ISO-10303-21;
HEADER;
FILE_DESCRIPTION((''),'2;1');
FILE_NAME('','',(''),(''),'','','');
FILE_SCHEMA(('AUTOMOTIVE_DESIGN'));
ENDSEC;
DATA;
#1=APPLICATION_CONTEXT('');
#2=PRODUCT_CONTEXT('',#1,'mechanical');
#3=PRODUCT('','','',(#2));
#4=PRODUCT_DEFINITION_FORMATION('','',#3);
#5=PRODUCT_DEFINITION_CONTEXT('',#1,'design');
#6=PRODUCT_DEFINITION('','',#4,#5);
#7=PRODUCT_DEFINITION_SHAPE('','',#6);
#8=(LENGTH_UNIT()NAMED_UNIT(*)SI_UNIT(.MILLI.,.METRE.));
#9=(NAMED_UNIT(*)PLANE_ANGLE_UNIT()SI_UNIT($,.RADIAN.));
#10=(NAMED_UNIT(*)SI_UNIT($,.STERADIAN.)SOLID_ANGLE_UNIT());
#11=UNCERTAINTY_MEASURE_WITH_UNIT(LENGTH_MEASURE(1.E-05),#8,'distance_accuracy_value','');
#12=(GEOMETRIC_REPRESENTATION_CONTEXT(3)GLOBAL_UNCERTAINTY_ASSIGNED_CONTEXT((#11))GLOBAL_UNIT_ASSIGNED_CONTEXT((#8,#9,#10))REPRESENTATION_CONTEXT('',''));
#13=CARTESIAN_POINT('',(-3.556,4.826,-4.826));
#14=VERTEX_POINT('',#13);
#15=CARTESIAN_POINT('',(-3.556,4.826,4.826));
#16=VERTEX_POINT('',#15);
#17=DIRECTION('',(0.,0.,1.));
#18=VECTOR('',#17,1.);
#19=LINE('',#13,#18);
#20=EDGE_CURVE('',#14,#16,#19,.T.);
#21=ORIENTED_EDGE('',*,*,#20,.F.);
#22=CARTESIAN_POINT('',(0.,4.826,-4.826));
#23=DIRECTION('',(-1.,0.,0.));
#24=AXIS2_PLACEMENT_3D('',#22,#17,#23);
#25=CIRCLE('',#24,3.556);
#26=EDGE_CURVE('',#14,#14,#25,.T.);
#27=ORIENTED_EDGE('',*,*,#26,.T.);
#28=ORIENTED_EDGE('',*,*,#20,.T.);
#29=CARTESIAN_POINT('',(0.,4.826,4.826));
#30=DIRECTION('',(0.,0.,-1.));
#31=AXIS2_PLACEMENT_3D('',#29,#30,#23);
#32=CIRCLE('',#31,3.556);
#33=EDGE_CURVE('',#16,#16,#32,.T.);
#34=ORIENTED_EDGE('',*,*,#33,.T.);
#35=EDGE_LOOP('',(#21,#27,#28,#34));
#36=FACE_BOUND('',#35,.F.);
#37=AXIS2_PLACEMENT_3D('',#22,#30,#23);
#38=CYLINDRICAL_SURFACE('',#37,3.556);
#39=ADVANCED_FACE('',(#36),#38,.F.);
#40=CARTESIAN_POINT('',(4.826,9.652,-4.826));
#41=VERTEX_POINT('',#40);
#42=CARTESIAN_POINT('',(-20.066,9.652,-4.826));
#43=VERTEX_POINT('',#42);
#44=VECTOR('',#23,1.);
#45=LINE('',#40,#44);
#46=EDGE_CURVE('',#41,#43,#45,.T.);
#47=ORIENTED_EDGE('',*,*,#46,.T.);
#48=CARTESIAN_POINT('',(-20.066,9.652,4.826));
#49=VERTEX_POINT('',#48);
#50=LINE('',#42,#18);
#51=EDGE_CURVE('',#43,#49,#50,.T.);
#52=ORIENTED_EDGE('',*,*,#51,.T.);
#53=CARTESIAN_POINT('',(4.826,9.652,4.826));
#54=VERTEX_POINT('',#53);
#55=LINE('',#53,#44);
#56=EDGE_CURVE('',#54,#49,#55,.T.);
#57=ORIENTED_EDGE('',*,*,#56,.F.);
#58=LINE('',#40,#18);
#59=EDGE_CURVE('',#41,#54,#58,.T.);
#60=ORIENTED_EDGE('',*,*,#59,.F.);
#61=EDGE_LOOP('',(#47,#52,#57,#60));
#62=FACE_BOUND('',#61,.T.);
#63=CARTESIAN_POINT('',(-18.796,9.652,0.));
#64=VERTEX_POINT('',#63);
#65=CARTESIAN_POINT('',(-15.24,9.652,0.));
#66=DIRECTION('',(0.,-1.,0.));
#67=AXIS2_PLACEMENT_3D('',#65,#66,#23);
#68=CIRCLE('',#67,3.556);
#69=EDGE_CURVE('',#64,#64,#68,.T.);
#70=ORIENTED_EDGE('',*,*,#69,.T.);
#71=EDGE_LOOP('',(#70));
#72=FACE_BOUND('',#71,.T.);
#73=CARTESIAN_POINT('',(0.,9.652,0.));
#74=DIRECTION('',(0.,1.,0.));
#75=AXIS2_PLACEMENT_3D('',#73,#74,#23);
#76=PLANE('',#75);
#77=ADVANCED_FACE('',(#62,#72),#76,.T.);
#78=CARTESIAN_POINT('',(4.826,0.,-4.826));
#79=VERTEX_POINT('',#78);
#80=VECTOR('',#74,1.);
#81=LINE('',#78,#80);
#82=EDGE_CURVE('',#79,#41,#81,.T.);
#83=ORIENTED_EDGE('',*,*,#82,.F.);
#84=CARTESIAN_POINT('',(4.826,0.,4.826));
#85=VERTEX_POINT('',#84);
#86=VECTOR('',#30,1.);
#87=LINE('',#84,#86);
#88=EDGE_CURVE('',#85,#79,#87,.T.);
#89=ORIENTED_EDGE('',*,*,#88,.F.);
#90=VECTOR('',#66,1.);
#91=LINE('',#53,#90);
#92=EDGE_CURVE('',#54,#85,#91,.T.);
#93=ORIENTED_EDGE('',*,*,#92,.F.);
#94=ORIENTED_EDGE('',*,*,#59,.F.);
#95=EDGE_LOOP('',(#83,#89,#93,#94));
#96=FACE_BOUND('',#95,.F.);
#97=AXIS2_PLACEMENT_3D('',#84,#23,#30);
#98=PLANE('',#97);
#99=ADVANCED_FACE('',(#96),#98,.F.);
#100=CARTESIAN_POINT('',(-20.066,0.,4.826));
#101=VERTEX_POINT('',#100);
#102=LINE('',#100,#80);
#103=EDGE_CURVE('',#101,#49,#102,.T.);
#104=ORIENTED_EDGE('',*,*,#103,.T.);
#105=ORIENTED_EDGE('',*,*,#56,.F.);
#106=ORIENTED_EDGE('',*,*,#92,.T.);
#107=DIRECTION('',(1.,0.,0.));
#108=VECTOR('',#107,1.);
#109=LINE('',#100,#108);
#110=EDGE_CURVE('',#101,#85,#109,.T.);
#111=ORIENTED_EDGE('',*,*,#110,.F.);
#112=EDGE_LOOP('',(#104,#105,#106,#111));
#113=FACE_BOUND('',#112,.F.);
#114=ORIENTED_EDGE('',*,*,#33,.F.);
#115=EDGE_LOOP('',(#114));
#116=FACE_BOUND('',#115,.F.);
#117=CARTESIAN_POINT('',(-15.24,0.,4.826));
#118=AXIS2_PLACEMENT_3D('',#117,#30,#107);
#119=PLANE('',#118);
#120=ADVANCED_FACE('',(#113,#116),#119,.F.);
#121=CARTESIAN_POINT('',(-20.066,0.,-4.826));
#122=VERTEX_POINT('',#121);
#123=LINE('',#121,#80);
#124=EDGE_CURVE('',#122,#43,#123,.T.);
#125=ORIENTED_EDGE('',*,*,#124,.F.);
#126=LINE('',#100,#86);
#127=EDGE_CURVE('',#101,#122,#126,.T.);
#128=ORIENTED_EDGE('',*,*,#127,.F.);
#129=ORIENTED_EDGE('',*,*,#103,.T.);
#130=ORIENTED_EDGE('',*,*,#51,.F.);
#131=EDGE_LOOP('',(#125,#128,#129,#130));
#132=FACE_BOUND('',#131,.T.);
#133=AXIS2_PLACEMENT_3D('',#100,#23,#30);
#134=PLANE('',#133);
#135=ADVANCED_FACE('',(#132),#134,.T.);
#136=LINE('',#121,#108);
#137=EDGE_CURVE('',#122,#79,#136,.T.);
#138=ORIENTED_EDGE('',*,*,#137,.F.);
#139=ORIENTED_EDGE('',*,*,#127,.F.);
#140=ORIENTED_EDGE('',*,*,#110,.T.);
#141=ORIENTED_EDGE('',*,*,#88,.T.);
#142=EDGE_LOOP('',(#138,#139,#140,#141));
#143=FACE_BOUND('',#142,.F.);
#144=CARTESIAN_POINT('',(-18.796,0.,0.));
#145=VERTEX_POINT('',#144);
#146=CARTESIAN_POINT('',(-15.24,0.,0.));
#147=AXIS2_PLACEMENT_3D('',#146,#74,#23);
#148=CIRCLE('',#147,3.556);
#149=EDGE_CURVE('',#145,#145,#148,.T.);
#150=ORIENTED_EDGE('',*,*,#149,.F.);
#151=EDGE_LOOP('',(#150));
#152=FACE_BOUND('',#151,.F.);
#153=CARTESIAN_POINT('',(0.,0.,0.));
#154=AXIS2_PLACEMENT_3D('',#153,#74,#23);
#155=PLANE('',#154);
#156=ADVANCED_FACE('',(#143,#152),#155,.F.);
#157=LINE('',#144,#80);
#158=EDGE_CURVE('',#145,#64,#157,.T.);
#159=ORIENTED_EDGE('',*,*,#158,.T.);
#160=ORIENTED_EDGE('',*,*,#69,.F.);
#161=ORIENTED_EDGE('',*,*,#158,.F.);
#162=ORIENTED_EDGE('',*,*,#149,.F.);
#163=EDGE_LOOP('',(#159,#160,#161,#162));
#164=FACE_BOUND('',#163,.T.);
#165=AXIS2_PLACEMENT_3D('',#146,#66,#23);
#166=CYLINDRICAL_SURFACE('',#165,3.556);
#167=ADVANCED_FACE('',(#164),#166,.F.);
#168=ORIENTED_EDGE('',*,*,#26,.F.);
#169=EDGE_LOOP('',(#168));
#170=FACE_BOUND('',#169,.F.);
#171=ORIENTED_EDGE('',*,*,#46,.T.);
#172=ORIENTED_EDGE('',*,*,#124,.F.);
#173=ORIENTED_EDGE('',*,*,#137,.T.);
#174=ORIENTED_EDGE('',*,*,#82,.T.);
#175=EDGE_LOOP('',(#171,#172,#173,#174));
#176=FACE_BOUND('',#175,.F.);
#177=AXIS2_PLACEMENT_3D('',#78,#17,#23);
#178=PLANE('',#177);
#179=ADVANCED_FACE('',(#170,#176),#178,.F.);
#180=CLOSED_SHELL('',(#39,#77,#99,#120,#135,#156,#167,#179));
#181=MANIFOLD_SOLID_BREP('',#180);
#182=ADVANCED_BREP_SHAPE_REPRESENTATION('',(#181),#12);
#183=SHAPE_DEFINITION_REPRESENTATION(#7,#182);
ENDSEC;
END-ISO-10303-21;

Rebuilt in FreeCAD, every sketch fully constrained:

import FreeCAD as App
import Part
import Sketcher
from FreeCAD import Vector
Q = App.Units.Quantity

doc = App.newDocument("Part")
body = doc.addObject("PartDesign::Body", "Body")

# Sketch on XZ plane
sketch1 = doc.addObject("Sketcher::SketchObject", "Sketch")
body.addObject(sketch1)
sketch1.AttachmentSupport = (doc.XZ_Plane, [""])
sketch1.MapMode = "FlatFace"
sketch1.addGeometry(Part.LineSegment(Vector(4.8, 4.8, 0), Vector(4.8, -4.8, 0)), False)
sketch1.addGeometry(Part.LineSegment(Vector(4.8, -4.8, 0), Vector(-20.1, -4.8, 0)), False)
sketch1.addGeometry(Part.LineSegment(Vector(-20.1, -4.8, 0), Vector(-20.1, 4.8, 0)), False)
sketch1.addGeometry(Part.LineSegment(Vector(-20.1, 4.8, 0), Vector(4.8, 4.8, 0)), False)
sketch1.addGeometry(Part.Circle(Vector(-15.2, 0, 0), Vector(0, 0, 1), 3.6), False)
sketch1.addConstraint(Sketcher.Constraint("Coincident", 0, 2, 1, 1))
sketch1.addConstraint(Sketcher.Constraint("Coincident", 1, 2, 2, 1))
sketch1.addConstraint(Sketcher.Constraint("Coincident", 2, 2, 3, 1))
sketch1.addConstraint(Sketcher.Constraint("Coincident", 3, 2, 0, 1))
sketch1.addConstraint(Sketcher.Constraint("Vertical", 0))
sketch1.addConstraint(Sketcher.Constraint("Horizontal", 1))
sketch1.addConstraint(Sketcher.Constraint("Vertical", 2))
sketch1.addConstraint(Sketcher.Constraint("Horizontal", 3))
sketch1.addConstraint(Sketcher.Constraint("PointOnObject", 4, 3, -1))
sketch1.addConstraint(Sketcher.Constraint("Diameter", 4, Q("0.28 in")))
sketch1.addConstraint(Sketcher.Constraint("DistanceX", 4, 3, -1, 1, Q("0.6 in")))
sketch1.addConstraint(Sketcher.Constraint("DistanceX", 1, 2, 1, 1, Q("0.98 in")))
sketch1.addConstraint(Sketcher.Constraint("DistanceY", 0, 2, 0, 1, Q("0.38 in")))
sketch1.addConstraint(Sketcher.Constraint("DistanceX", -1, 1, 0, 2, Q("0.19 in")))
sketch1.addConstraint(Sketcher.Constraint("DistanceY", 0, 2, -1, 1, Q("0.19 in")))
pad1 = doc.addObject("PartDesign::Pad", "Pad")
body.addObject(pad1)
pad1.Profile = sketch1
pad1.Length = Q("0.38 in")
pad1.Reversed = True

# Sketch on XY plane
sketch2 = doc.addObject("Sketcher::SketchObject", "Sketch001")
body.addObject(sketch2)
sketch2.AttachmentSupport = (doc.XY_Plane, [""])
sketch2.MapMode = "FlatFace"
sketch2.AttachmentOffset = App.Placement(Vector(0, 0, -0.19 * 25.4), App.Rotation())
sketch2.addGeometry(Part.Circle(Vector(0, 4.8, 0), Vector(0, 0, 1), 3.6), False)
sketch2.addConstraint(Sketcher.Constraint("PointOnObject", 0, 3, -2))
sketch2.addConstraint(Sketcher.Constraint("Diameter", 0, Q("0.28 in")))
sketch2.addConstraint(Sketcher.Constraint("DistanceY", -1, 1, 0, 3, Q("0.19 in")))
pocket1 = doc.addObject("PartDesign::Pocket", "Pocket")
body.addObject(pocket1)
pocket1.Profile = sketch2
pocket1.Type = "ThroughAll"
pocket1.Reversed = True

# Sketch on YZ plane
sketch3 = doc.addObject("Sketcher::SketchObject", "Sketch002")
body.addObject(sketch3)
sketch3.AttachmentSupport = (doc.YZ_Plane, [""])
sketch3.MapMode = "FlatFace"
sketch3.AttachmentOffset = App.Placement(Vector(0, 0, 0.19 * 25.4), App.Rotation())
sketch3.addGeometry(Part.Circle(Vector(5, 0, 0), Vector(0, 0, 1), 5), False)
sketch3.addConstraint(Sketcher.Constraint("PointOnObject", 0, 3, -1))
sketch3.addConstraint(Sketcher.Constraint("Diameter", 0, Q("0.4 in")))
sketch3.addConstraint(Sketcher.Constraint("DistanceX", -1, 1, 0, 3, Q("0.19 in")))
pad2 = doc.addObject("PartDesign::Pad", "Pad001")
body.addObject(pad2)
pad2.Profile = sketch3
pad2.Length = Q("3 in")

# Sketch on YZ plane
sketch4 = doc.addObject("Sketcher::SketchObject", "Sketch003")
body.addObject(sketch4)
sketch4.AttachmentSupport = (doc.YZ_Plane, [""])
sketch4.MapMode = "FlatFace"
sketch4.AttachmentOffset = App.Placement(Vector(0, 0, 3.19 * 25.4), App.Rotation())
sketch4.addGeometry(Part.Circle(Vector(5, 0, 0), Vector(0, 0, 1), 5), False)
sketch4.addConstraint(Sketcher.Constraint("PointOnObject", 0, 3, -1))
sketch4.addConstraint(Sketcher.Constraint("Diameter", 0, Q("0.4 in")))
sketch4.addConstraint(Sketcher.Constraint("DistanceX", -1, 1, 0, 3, Q("0.19 in")))
pocket2 = doc.addObject("PartDesign::Pocket", "Pocket001")
body.addObject(pocket2)
pocket2.Profile = sketch4
pocket2.Length = Q("3 in")

doc.recompute()
